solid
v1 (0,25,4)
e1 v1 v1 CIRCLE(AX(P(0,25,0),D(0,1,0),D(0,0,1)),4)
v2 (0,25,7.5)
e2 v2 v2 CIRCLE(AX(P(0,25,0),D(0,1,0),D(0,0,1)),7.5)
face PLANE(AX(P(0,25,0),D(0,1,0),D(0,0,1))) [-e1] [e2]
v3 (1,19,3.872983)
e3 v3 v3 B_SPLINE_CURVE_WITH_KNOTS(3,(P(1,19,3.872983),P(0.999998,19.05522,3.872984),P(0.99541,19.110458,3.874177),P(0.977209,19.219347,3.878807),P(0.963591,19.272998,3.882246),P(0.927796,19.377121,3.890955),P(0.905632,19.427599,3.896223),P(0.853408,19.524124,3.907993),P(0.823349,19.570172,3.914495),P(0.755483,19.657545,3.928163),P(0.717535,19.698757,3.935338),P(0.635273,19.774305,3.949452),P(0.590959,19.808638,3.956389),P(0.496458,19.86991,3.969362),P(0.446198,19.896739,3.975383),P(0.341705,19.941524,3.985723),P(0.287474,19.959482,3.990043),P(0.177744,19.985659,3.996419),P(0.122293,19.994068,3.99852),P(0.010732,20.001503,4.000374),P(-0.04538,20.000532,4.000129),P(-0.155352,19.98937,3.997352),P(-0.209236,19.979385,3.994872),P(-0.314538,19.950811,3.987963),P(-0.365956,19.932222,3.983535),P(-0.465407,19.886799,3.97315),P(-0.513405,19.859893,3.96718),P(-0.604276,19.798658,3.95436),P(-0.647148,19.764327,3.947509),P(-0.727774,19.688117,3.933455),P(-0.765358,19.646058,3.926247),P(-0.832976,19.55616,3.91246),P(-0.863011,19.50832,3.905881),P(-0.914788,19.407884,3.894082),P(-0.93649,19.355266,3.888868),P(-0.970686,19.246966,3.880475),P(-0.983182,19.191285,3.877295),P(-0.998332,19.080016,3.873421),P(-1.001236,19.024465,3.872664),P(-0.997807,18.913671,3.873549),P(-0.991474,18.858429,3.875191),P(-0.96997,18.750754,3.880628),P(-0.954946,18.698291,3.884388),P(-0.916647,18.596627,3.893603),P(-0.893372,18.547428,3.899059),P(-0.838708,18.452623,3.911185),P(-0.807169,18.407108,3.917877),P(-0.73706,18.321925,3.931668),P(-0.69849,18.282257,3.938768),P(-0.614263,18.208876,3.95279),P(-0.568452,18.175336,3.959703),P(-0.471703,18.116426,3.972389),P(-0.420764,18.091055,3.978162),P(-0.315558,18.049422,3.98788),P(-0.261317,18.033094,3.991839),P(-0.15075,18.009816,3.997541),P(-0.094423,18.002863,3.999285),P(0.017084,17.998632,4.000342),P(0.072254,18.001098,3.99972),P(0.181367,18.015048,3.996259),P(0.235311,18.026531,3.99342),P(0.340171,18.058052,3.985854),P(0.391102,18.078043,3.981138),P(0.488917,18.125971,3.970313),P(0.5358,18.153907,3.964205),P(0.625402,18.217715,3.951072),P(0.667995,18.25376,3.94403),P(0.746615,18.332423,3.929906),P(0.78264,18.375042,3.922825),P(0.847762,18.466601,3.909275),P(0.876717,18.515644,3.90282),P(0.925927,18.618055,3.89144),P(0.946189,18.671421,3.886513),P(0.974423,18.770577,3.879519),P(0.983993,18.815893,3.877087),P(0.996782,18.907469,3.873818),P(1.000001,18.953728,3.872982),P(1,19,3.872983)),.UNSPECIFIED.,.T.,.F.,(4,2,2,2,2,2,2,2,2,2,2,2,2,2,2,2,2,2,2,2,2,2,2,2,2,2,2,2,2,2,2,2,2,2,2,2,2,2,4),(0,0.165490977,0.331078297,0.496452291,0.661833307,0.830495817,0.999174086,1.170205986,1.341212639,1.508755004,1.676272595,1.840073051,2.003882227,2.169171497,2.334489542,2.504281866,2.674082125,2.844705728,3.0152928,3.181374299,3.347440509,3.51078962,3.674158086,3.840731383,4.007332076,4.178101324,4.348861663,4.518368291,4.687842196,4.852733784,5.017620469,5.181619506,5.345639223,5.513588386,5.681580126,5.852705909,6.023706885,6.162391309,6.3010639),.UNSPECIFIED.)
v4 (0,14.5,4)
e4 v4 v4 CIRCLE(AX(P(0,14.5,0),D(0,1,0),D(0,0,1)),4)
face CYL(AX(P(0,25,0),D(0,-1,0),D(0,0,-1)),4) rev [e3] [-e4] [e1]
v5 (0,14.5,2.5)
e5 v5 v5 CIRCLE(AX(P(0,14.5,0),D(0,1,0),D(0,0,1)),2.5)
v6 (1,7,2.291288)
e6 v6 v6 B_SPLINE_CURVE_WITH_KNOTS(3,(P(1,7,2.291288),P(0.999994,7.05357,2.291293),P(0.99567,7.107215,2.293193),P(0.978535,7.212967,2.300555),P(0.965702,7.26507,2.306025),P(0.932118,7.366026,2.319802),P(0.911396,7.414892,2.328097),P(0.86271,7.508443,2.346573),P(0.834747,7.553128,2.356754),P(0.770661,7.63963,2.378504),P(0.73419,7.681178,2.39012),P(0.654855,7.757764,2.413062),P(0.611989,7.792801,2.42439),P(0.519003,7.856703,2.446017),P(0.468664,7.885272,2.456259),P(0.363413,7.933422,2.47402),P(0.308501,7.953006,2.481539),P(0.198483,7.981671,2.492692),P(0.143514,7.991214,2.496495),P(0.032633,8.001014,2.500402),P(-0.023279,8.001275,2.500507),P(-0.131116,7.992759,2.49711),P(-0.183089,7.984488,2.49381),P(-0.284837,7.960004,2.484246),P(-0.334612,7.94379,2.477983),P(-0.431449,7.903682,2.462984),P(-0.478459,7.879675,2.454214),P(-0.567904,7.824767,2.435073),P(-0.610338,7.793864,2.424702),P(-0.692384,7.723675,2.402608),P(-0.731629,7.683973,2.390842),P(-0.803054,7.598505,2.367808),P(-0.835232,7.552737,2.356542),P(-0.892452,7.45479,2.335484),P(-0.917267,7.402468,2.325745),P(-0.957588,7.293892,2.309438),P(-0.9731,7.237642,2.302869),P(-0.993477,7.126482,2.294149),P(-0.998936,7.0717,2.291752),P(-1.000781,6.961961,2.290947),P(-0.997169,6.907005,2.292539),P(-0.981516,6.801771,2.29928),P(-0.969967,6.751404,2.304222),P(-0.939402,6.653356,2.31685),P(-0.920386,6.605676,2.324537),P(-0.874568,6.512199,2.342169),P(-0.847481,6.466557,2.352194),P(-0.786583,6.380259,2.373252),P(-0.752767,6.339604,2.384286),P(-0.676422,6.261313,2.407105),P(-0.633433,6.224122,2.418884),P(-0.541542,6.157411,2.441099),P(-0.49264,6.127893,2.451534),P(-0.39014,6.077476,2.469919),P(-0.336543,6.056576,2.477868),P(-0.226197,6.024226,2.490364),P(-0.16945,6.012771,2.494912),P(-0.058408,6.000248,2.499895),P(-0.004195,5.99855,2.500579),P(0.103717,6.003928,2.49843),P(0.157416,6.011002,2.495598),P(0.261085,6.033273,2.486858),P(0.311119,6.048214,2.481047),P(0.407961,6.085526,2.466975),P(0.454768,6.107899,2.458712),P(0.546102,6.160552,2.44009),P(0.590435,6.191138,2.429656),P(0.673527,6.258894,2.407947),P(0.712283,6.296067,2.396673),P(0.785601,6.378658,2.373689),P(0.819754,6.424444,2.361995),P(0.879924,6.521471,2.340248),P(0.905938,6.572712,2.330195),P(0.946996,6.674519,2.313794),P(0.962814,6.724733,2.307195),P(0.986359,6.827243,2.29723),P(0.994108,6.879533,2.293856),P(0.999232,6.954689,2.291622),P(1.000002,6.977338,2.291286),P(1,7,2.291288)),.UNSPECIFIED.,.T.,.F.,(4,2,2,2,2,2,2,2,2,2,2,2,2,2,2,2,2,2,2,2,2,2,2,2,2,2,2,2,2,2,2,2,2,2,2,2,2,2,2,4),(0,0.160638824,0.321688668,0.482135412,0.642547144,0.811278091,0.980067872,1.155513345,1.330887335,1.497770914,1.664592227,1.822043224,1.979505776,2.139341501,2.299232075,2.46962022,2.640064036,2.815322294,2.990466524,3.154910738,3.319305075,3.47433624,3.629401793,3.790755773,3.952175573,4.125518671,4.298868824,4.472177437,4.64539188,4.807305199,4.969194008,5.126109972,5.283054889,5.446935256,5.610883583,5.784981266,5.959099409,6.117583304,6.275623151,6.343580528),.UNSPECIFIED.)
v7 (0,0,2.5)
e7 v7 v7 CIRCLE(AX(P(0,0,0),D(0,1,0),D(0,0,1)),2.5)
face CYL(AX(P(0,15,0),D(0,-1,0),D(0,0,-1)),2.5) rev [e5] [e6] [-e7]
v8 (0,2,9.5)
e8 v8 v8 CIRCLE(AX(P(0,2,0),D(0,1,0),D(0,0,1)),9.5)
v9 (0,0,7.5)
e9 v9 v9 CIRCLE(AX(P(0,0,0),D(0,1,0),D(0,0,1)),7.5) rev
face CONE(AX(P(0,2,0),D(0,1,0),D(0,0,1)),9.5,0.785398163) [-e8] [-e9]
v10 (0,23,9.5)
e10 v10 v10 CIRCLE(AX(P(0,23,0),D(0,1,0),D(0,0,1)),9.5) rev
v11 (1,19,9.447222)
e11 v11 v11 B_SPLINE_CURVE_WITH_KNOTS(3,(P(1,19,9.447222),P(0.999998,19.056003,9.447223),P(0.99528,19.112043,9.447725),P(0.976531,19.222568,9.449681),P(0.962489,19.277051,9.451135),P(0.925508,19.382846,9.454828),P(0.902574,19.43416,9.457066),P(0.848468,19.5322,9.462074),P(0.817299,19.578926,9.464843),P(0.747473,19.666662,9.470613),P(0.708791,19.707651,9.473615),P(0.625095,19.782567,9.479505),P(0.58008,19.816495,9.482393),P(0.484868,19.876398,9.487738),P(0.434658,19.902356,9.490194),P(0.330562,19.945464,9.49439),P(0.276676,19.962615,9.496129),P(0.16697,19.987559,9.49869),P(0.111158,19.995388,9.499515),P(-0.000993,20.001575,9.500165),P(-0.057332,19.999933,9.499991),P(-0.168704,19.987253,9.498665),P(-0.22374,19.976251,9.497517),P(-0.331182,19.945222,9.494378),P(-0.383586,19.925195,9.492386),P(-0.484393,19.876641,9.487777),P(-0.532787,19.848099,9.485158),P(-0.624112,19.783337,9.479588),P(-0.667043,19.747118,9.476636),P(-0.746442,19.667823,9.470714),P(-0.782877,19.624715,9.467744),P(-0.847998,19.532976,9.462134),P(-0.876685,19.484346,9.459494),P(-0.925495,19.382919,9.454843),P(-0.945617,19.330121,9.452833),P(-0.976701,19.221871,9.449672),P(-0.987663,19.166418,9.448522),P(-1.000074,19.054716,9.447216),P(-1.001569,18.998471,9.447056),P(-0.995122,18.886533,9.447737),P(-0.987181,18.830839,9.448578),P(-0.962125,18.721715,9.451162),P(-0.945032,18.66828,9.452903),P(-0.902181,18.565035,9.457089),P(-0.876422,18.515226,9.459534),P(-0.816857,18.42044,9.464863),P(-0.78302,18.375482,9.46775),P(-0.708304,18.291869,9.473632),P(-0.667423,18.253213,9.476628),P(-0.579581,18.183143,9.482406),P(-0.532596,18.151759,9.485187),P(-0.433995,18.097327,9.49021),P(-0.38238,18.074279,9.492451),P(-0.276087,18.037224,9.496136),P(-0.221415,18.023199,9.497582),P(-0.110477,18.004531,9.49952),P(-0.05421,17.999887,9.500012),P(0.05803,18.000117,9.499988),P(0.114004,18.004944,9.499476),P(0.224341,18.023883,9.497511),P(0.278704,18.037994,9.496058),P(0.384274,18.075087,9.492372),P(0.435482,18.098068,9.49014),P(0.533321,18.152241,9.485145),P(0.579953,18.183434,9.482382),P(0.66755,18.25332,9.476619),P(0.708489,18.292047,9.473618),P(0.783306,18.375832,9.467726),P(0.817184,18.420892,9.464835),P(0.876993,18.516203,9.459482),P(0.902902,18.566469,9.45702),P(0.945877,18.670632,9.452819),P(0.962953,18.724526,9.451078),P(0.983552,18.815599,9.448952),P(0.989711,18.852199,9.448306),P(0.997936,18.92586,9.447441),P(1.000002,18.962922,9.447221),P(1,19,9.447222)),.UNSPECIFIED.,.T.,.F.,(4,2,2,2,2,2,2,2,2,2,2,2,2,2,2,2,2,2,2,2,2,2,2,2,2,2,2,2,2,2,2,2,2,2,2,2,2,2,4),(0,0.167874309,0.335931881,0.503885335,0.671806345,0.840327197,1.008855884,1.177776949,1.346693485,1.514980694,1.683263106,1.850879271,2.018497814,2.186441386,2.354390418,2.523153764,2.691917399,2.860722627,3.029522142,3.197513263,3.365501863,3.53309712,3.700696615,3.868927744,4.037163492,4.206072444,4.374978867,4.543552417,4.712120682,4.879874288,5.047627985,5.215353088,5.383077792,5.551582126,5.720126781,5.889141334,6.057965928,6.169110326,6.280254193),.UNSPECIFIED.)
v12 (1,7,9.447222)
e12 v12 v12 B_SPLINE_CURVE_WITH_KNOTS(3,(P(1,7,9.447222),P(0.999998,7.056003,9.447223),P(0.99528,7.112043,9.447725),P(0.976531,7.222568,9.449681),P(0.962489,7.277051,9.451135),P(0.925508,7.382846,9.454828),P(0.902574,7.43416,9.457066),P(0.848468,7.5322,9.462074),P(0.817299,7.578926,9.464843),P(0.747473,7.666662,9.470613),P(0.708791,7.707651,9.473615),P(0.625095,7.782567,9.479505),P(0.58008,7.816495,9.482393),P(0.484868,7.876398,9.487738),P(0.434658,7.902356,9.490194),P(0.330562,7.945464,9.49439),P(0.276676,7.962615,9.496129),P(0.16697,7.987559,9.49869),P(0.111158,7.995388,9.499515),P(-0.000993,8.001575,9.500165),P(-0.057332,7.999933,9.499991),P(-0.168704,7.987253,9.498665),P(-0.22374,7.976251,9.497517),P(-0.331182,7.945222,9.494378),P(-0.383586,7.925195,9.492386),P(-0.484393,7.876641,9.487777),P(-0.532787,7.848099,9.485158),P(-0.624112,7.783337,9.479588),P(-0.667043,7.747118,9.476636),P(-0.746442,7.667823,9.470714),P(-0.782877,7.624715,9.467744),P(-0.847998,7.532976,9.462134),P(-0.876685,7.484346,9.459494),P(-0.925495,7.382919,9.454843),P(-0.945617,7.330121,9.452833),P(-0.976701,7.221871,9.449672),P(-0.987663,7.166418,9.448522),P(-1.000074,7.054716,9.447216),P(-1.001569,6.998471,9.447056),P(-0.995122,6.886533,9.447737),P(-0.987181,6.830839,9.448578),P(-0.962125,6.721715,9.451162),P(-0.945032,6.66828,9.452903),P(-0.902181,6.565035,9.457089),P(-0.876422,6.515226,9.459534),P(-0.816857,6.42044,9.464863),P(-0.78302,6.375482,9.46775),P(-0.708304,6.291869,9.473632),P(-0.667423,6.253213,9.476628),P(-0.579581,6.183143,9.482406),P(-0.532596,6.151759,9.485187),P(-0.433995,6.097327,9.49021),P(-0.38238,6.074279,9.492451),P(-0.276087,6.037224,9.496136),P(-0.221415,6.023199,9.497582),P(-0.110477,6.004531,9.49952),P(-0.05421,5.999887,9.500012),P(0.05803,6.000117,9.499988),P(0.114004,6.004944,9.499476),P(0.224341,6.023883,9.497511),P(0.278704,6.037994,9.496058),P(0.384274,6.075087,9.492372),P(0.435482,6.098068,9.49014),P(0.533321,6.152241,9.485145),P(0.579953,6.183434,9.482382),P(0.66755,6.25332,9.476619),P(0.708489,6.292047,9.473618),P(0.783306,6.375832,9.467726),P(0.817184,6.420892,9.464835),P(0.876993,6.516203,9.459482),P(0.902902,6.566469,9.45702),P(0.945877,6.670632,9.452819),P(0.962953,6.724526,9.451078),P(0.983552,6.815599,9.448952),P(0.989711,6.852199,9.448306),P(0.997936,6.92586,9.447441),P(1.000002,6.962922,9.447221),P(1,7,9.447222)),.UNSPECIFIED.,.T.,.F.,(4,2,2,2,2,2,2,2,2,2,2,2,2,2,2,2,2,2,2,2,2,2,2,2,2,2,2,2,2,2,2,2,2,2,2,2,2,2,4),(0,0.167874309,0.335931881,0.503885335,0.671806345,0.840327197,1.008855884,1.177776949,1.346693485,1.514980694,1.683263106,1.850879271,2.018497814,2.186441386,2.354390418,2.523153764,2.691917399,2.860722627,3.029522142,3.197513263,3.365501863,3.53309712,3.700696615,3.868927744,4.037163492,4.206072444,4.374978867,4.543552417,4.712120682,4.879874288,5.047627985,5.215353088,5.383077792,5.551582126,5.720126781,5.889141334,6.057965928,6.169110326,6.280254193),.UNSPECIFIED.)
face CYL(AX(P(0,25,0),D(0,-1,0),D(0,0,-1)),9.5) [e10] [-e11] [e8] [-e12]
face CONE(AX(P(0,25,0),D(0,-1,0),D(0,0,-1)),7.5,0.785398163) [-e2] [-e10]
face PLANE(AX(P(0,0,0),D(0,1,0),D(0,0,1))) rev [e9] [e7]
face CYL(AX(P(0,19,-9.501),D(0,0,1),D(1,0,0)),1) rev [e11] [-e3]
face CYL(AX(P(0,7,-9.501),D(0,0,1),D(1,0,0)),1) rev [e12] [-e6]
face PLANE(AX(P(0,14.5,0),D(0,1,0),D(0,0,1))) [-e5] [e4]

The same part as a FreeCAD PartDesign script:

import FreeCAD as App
import Part
import Sketcher

V = App.Vector


def edges_at(feature, points):
    """Names of the edges that pass closest to the given points."""
    edges = feature.Shape.Edges
    near = lambda p: min(range(len(edges)), key=lambda i: edges[i].distToShape(Part.Vertex(*p))[0])
    return sorted({f"Edge{near(p) + 1}" for p in points})

doc = App.newDocument("Part")
body = doc.addObject("PartDesign::Body", "Body")

sketch1 = doc.addObject("Sketcher::SketchObject", "Sketch")
body.addObject(sketch1)
sketch1.AttachmentSupport = (doc.XZ_Plane, [""])
sketch1.MapMode = "FlatFace"
sketch1.addGeometry(Part.Circle(V(0, 0, 0), V(0, 0, 1), 9.5), False)
sketch1.addConstraint([
    Sketcher.Constraint("Coincident", 0, 3, -1, 1),
    Sketcher.Constraint("Diameter", 0, 19.0),
])
pad1 = doc.addObject("PartDesign::Pad", "Pad")
body.addObject(pad1)
pad1.Profile = sketch1
pad1.Length = 25
pad1.Reversed = True

sketch2 = doc.addObject("Sketcher::SketchObject", "Sketch001")
body.addObject(sketch2)
sketch2.AttachmentSupport = (doc.XZ_Plane, [""])
sketch2.MapMode = "FlatFace"
sketch2.addGeometry(Part.Circle(V(0, 0, 0), V(0, 0, 1), 2.5), False)
sketch2.addConstraint([
    Sketcher.Constraint("Coincident", 0, 3, -1, 1),
    Sketcher.Constraint("Diameter", 0, 5.0),
])
pocket1 = doc.addObject("PartDesign::Pocket", "Pocket")
body.addObject(pocket1)
pocket1.Profile = sketch2
pocket1.Length = 15

sketch3 = doc.addObject("Sketcher::SketchObject", "Sketch002")
body.addObject(sketch3)
sketch3.AttachmentSupport = (doc.XZ_Plane, [""])
sketch3.MapMode = "FlatFace"
sketch3.AttachmentOffset = App.Placement(V(0, 0, -14.5), App.Rotation())
sketch3.addGeometry(Part.Circle(V(0, 0, 0), V(0, 0, 1), 4), False)
sketch3.addConstraint([
    Sketcher.Constraint("Coincident", 0, 3, -1, 1),
    Sketcher.Constraint("Diameter", 0, 8.0),
])
pocket2 = doc.addObject("PartDesign::Pocket", "Pocket001")
body.addObject(pocket2)
pocket2.Profile = sketch3
pocket2.Type = "ThroughAll"
doc.recompute()

chamfer = doc.addObject("PartDesign::Chamfer", "Chamfer")
body.addObject(chamfer)
chamfer.Base = (pocket2, edges_at(pocket2, [(0, 0, -9.5), (0, 25, -9.5)]))
chamfer.Size = 2

sketch4 = doc.addObject("Sketcher::SketchObject", "Sketch003")
body.addObject(sketch4)
sketch4.AttachmentSupport = (doc.XY_Plane, [""])
sketch4.MapMode = "FlatFace"
sketch4.AttachmentOffset = App.Placement(V(0, 0, 9.5), App.Rotation())
sketch4.addGeometry(Part.Circle(V(0, 19, 0), V(0, 0, 1), 1), False)
sketch4.addConstraint([
    Sketcher.Constraint("PointOnObject", 0, 3, -2),
    Sketcher.Constraint("Diameter", 0, 2.0),
    Sketcher.Constraint("DistanceY", -1, 1, 0, 3, 19.0),
])
pocket3 = doc.addObject("PartDesign::Pocket", "Pocket002")
body.addObject(pocket3)
pocket3.Profile = sketch4
pocket3.Type = "UpToFirst"

sketch5 = doc.addObject("Sketcher::SketchObject", "Sketch004")
body.addObject(sketch5)
sketch5.AttachmentSupport = (doc.XY_Plane, [""])
sketch5.MapMode = "FlatFace"
sketch5.AttachmentOffset = App.Placement(V(0, 0, 9.5), App.Rotation())
sketch5.addGeometry(Part.Circle(V(0, 7, 0), V(0, 0, 1), 1), False)
sketch5.addConstraint([
    Sketcher.Constraint("PointOnObject", 0, 3, -2),
    Sketcher.Constraint("Diameter", 0, 2.0),
    Sketcher.Constraint("DistanceY", -1, 1, 0, 3, 7.0),
])
pocket4 = doc.addObject("PartDesign::Pocket", "Pocket003")
body.addObject(pocket4)
pocket4.Profile = sketch5
pocket4.Type = "UpToFirst"

doc.recompute()
